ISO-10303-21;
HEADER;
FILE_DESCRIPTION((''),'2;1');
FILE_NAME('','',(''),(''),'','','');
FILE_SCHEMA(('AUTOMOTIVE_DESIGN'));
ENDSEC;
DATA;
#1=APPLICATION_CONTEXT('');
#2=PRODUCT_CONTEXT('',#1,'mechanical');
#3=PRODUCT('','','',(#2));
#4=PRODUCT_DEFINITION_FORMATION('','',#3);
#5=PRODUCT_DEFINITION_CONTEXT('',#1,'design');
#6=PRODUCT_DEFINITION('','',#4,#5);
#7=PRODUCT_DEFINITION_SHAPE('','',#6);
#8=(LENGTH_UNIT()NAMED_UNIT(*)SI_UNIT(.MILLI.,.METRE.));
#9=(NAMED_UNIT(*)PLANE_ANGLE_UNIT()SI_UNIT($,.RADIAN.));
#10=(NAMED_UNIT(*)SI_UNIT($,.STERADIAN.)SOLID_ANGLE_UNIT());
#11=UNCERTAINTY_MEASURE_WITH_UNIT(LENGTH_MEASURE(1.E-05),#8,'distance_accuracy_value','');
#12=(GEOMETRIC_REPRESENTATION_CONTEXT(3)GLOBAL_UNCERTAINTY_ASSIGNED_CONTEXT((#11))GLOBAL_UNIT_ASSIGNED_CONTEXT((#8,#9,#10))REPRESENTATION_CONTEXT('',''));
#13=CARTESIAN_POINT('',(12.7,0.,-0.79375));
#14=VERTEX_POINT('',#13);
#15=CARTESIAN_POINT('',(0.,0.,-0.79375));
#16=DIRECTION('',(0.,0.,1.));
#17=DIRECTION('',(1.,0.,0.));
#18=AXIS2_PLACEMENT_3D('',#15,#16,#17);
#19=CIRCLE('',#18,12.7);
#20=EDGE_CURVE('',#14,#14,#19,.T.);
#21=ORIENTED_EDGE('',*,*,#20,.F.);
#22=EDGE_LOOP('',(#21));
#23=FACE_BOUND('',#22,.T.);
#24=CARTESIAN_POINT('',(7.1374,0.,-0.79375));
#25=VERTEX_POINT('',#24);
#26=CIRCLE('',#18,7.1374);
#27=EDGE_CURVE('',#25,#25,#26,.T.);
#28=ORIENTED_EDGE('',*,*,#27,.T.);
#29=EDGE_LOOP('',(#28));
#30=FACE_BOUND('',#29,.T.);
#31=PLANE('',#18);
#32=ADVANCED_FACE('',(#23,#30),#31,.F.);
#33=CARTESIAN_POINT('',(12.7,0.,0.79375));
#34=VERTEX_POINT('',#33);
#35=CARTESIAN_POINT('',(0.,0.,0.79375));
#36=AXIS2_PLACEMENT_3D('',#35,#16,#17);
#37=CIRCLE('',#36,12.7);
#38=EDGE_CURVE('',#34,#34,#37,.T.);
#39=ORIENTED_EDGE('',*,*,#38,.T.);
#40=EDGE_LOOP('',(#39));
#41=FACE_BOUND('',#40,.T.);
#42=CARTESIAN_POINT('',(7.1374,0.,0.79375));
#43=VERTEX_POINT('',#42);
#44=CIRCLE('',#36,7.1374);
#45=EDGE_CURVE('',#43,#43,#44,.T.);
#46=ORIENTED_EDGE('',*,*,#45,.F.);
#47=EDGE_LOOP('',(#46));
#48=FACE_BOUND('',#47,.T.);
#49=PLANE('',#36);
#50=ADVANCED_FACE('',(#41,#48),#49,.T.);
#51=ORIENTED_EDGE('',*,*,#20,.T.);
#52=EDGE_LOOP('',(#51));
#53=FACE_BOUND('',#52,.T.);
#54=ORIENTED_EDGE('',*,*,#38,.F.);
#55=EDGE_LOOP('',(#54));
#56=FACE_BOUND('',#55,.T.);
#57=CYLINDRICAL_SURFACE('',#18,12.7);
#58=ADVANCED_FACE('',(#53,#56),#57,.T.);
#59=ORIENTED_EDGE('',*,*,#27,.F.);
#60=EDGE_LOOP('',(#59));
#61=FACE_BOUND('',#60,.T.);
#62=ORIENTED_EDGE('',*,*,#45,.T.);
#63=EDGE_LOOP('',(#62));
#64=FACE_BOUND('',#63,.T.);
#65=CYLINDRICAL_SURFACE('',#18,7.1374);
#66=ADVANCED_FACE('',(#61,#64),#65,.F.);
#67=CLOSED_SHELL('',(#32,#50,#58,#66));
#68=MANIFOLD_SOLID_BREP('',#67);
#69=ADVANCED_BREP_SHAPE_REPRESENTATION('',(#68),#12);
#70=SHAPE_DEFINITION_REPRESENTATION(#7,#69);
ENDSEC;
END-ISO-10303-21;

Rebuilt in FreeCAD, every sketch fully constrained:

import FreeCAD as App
import Part
import Sketcher
Q = App.Units.Quantity

doc = App.newDocument("Part")
params = doc.addObject("Spreadsheet::Sheet", "Params")
for row, (alias, value) in enumerate([
    ("sketch1_diameter", "1 in"),
    ("sketch1_diameter2", "0.562 in"),
    ("pad1_length", "0.03125 in"),
    ("pad1_length2", "0.03125 in"),
], start=1):
    params.set(f"A{row}", alias)
    params.set(f"B{row}", "=" + value)
    params.setAlias(f"B{row}", alias)

body = doc.addObject("PartDesign::Body", "Body")

sketch1 = body.newObject("Sketcher::SketchObject", "Sketch")
sketch1.AttachmentSupport = (doc.getObject("XY_Plane"), [""])
sketch1.MapMode = "FlatFace"
sketch1.addGeometry([
    Part.Circle(App.Vector(0, 0, 0), App.Vector(0, 0, 1), 13),
    Part.Circle(App.Vector(0, 0, 0), App.Vector(0, 0, 1), 7),
], False)
sketch1.addConstraint([
    Sketcher.Constraint("Coincident", 0, 3, -1, 1),
    Sketcher.Constraint("Coincident", 1, 3, -1, 1),
    Sketcher.Constraint("Diameter", 0, Q("1 in")),
    Sketcher.Constraint("Diameter", 1, Q("0.562 in")),
])
sketch1.setExpression("Constraints[2]", "Params.sketch1_diameter")
sketch1.setExpression("Constraints[3]", "Params.sketch1_diameter2")
pad1 = body.newObject("PartDesign::Pad", "Pad")
pad1.Profile = sketch1
pad1.Type = "TwoLengths"
pad1.setExpression("Length", "Params.pad1_length")
pad1.setExpression("Length2", "Params.pad1_length2")

doc.recompute()
